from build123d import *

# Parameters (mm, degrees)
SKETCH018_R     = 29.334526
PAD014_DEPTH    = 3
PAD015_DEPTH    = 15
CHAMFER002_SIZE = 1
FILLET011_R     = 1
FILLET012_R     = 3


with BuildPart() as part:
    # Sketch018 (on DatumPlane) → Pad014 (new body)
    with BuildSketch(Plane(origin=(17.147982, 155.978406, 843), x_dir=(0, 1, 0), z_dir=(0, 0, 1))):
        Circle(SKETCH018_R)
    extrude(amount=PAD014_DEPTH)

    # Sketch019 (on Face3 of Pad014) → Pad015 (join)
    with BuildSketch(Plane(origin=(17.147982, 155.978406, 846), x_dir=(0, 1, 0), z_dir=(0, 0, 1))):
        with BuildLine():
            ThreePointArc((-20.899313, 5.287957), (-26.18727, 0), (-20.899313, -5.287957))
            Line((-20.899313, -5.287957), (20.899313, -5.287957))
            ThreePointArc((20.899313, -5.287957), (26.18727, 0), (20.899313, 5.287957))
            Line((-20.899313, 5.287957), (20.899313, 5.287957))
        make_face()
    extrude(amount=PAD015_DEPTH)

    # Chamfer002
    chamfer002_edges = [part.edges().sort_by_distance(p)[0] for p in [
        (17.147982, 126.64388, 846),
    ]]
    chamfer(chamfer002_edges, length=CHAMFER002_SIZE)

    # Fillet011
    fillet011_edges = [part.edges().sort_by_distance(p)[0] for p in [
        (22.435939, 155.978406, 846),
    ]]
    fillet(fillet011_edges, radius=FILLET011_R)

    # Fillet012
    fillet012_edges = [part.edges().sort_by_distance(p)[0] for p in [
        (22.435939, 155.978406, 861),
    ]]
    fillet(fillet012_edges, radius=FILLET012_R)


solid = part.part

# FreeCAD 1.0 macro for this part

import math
import FreeCAD as App
import Part
import Sketcher

V = App.Vector


def edges_at(feature, points):
    """Names of the edges that pass closest to the given points."""
    edges = feature.Shape.Edges
    near = lambda p: min(range(len(edges)), key=lambda i: edges[i].distToShape(Part.Vertex(*p))[0])
    return sorted({f"Edge{near(p) + 1}" for p in points})

doc = App.newDocument("Part")
body = doc.addObject("PartDesign::Body", "Body")

# Sketch on XY plane
sketch1 = body.newObject("Sketcher::SketchObject", "Sketch")
sketch1.AttachmentSupport = (doc.getObject("XY_Plane"), [""])
sketch1.MapMode = "FlatFace"
sketch1.AttachmentOffset = App.Placement(V(0, 0, 843), App.Rotation())
sketch1.addGeometry(Part.Circle(V(17, 156, 0), V(0, 0, 1), 29), False)
sketch1.addConstraint(Sketcher.Constraint("Diameter", 0, 58.669052))
sketch1.addConstraint(Sketcher.Constraint("DistanceX", -1, 1, 0, 3, 17.147982))
sketch1.addConstraint(Sketcher.Constraint("DistanceY", -1, 1, 0, 3, 155.978406))
pad1 = body.newObject("PartDesign::Pad", "Pad")
pad1.Profile = sketch1
pad1.Length = 3

# Sketch on XY plane
sketch2 = body.newObject("Sketcher::SketchObject", "Sketch001")
sketch2.AttachmentSupport = (doc.getObject("XY_Plane"), [""])
sketch2.MapMode = "FlatFace"
sketch2.AttachmentOffset = App.Placement(V(0, 0, 846), App.Rotation())
sketch2.addGeometry(Part.ArcOfCircle(Part.Circle(V(17, 135, 0), V(0, 0, 1), 5), math.radians(180), math.radians(360)), False)
sketch2.addGeometry(Part.LineSegment(V(22, 135, 0), V(22, 177, 0)), False)
sketch2.addGeometry(Part.ArcOfCircle(Part.Circle(V(17, 177, 0), V(0, 0, 1), 5), math.radians(0), math.radians(180)), False)
sketch2.addGeometry(Part.LineSegment(V(12, 177, 0), V(12, 135, 0)), False)
sketch2.addConstraint(Sketcher.Constraint("Tangent", 0, 2, 1, 1))
sketch2.addConstraint(Sketcher.Constraint("Tangent", 1, 2, 2, 1))
sketch2.addConstraint(Sketcher.Constraint("Tangent", 2, 2, 3, 1))
sketch2.addConstraint(Sketcher.Constraint("Tangent", 3, 2, 0, 1))
sketch2.addConstraint(Sketcher.Constraint("Vertical", 1))
sketch2.addConstraint(Sketcher.Constraint("Vertical", 3))
sketch2.addConstraint(Sketcher.Constraint("Radius", 0, 5.287957))
sketch2.addConstraint(Sketcher.Constraint("DistanceY", 1, 1, 1, 2, 41.798626))
sketch2.addConstraint(Sketcher.Constraint("DistanceX", -1, 1, 0, 3, 17.147982))
sketch2.addConstraint(Sketcher.Constraint("DistanceY", -1, 1, 2, 3, 176.877719))
pad2 = body.newObject("PartDesign::Pad", "Pad001")
pad2.Profile = sketch2
pad2.Length = 15
doc.recompute()

chamfer = body.newObject("PartDesign::Chamfer", "Chamfer")
chamfer.Base = (pad2, edges_at(pad2, [(17.148, 126.644, 846)]))
chamfer.Size = 1
doc.recompute()

fillet = body.newObject("PartDesign::Fillet", "Fillet")
fillet.Base = (chamfer, edges_at(chamfer, [(22.436, 155.978, 846)]))
fillet.Radius = 1
doc.recompute()

fillet2 = body.newObject("PartDesign::Fillet", "Fillet001")
fillet2.Base = (fillet, edges_at(fillet, [(22.436, 155.978, 861)]))
fillet2.Radius = 3

doc.recompute()
